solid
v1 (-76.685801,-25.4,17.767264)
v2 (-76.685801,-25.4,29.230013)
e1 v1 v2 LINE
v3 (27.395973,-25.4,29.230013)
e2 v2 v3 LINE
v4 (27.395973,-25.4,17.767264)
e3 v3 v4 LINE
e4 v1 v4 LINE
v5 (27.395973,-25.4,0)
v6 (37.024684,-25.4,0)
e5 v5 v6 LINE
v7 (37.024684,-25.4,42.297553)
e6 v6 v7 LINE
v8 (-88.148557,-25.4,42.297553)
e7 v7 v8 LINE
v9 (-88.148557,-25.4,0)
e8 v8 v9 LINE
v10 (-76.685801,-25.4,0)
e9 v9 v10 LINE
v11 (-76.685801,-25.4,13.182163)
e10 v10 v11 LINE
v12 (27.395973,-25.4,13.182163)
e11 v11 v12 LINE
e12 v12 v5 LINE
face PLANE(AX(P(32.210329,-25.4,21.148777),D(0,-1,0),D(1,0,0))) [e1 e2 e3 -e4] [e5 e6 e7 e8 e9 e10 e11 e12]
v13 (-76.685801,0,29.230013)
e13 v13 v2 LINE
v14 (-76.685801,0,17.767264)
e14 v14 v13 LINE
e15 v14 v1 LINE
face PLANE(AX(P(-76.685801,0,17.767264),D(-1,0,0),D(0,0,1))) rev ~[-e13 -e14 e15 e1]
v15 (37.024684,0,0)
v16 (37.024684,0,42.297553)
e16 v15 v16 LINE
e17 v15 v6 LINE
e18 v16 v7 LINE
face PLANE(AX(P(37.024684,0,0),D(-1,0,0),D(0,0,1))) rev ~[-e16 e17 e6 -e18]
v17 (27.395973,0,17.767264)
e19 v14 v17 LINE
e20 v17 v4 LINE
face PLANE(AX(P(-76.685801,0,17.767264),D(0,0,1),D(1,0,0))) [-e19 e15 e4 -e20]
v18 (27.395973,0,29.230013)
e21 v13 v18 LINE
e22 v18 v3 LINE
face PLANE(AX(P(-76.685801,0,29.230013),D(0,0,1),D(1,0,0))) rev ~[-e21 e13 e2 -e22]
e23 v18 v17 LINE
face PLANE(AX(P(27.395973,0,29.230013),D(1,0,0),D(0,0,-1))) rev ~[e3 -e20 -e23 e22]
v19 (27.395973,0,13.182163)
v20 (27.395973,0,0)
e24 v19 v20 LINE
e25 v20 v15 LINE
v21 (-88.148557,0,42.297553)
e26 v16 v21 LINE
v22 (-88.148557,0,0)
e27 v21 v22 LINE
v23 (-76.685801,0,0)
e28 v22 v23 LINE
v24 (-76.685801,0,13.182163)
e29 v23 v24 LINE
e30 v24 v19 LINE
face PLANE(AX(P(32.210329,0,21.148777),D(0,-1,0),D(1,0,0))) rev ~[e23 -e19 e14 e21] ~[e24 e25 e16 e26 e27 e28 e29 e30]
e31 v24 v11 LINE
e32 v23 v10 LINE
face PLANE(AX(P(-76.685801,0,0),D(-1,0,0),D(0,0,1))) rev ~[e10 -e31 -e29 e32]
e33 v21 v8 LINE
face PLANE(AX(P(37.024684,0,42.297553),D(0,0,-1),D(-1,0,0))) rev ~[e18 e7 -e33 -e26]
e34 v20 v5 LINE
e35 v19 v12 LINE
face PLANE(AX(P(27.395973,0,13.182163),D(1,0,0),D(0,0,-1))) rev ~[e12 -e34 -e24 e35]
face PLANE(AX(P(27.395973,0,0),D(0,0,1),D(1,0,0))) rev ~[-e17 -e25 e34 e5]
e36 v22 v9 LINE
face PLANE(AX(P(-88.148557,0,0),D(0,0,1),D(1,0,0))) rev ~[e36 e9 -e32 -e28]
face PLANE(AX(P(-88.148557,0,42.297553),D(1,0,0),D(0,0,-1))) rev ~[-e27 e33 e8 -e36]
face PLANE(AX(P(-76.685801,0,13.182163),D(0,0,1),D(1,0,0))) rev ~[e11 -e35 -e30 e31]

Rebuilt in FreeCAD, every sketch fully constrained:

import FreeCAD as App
import Part
import Sketcher
from FreeCAD import Vector
Q = App.Units.Quantity

doc = App.newDocument("Part")
body = doc.addObject("PartDesign::Body", "Body")

# Sketch on XZ plane
sketch1 = doc.addObject("Sketcher::SketchObject", "Sketch")
body.addObject(sketch1)
sketch1.AttachmentSupport = (doc.XZ_Plane, [""])
sketch1.MapMode = "FlatFace"
sketch1.addGeometry([
    Part.LineSegment(Vector(37, 42, 0), Vector(-88, 42, 0)),  # 0
    Part.LineSegment(Vector(-88, 42, 0), Vector(-88, 0, 0)),  # 1
    Part.LineSegment(Vector(-88, 0, 0), Vector(-77, 0, 0)),  # 2
    Part.LineSegment(Vector(-77, 0, 0), Vector(-77, 13, 0)),  # 3
    Part.LineSegment(Vector(-77, 13, 0), Vector(27, 13, 0)),  # 4
    Part.LineSegment(Vector(27, 13, 0), Vector(27, 0, 0)),  # 5
    Part.LineSegment(Vector(27, 0, 0), Vector(37, 0, 0)),  # 6
    Part.LineSegment(Vector(37, 0, 0), Vector(37, 42, 0)),  # 7
    Part.LineSegment(Vector(-77, 18, 0), Vector(-77, 29, 0)),  # 8
    Part.LineSegment(Vector(-77, 29, 0), Vector(27, 29, 0)),  # 9
    Part.LineSegment(Vector(27, 29, 0), Vector(27, 18, 0)),  # 10
    Part.LineSegment(Vector(27, 18, 0), Vector(-77, 18, 0)),  # 11
], False)
sketch1.addConstraint([
    Sketcher.Constraint("Coincident", 0, 2, 1, 1),
    Sketcher.Constraint("Coincident", 1, 2, 2, 1),
    Sketcher.Constraint("Coincident", 2, 2, 3, 1),
    Sketcher.Constraint("Coincident", 3, 2, 4, 1),
    Sketcher.Constraint("Coincident", 4, 2, 5, 1),
    Sketcher.Constraint("Coincident", 5, 2, 6, 1),
    Sketcher.Constraint("Coincident", 6, 2, 7, 1),
    Sketcher.Constraint("Coincident", 7, 2, 0, 1),
    Sketcher.Constraint("Coincident", 8, 2, 9, 1),
    Sketcher.Constraint("Coincident", 9, 2, 10, 1),
    Sketcher.Constraint("Coincident", 10, 2, 11, 1),
    Sketcher.Constraint("Coincident", 11, 2, 8, 1),
    Sketcher.Constraint("Horizontal", 0),
    Sketcher.Constraint("Vertical", 1),
    Sketcher.Constraint("Horizontal", 2),
    Sketcher.Constraint("Vertical", 3),
    Sketcher.Constraint("Horizontal", 4),
    Sketcher.Constraint("Vertical", 5),
    Sketcher.Constraint("Horizontal", 6),
    Sketcher.Constraint("Vertical", 7),
    Sketcher.Constraint("Vertical", 8),
    Sketcher.Constraint("Horizontal", 9),
    Sketcher.Constraint("Vertical", 10),
    Sketcher.Constraint("Horizontal", 11),
    Sketcher.Constraint("PointOnObject", 1, 2, -1),
    Sketcher.Constraint("PointOnObject", 5, 2, -1),
    Sketcher.Constraint("Vertical", 3, 2, 8, 2),
    Sketcher.Constraint("Vertical", 5, 2, 9, 2),
    Sketcher.Constraint("DistanceX", 0, 2, 0, 1, Q("125.173241 mm")),
    Sketcher.Constraint("DistanceX", 6, 1, 6, 2, Q("9.628711 mm")),
    Sketcher.Constraint("DistanceY", 8, 1, 8, 2, Q("11.462749 mm")),
    Sketcher.Constraint("DistanceX", 2, 2, -1, 1, Q("76.685801 mm")),
    Sketcher.Constraint("DistanceY", 4, 2, 10, 2, Q("4.585101 mm")),
    Sketcher.Constraint("DistanceX", 2, 1, 2, 2, Q("11.462756 mm")),
    Sketcher.Constraint("DistanceY", 1, 2, 1, 1, Q("42.297553 mm")),
    Sketcher.Constraint("DistanceY", 3, 1, 3, 2, Q("13.182163 mm")),
])
pad1 = doc.addObject("PartDesign::Pad", "Pad")
body.addObject(pad1)
pad1.Profile = sketch1
pad1.Length = Q("1 in")

doc.recompute()
